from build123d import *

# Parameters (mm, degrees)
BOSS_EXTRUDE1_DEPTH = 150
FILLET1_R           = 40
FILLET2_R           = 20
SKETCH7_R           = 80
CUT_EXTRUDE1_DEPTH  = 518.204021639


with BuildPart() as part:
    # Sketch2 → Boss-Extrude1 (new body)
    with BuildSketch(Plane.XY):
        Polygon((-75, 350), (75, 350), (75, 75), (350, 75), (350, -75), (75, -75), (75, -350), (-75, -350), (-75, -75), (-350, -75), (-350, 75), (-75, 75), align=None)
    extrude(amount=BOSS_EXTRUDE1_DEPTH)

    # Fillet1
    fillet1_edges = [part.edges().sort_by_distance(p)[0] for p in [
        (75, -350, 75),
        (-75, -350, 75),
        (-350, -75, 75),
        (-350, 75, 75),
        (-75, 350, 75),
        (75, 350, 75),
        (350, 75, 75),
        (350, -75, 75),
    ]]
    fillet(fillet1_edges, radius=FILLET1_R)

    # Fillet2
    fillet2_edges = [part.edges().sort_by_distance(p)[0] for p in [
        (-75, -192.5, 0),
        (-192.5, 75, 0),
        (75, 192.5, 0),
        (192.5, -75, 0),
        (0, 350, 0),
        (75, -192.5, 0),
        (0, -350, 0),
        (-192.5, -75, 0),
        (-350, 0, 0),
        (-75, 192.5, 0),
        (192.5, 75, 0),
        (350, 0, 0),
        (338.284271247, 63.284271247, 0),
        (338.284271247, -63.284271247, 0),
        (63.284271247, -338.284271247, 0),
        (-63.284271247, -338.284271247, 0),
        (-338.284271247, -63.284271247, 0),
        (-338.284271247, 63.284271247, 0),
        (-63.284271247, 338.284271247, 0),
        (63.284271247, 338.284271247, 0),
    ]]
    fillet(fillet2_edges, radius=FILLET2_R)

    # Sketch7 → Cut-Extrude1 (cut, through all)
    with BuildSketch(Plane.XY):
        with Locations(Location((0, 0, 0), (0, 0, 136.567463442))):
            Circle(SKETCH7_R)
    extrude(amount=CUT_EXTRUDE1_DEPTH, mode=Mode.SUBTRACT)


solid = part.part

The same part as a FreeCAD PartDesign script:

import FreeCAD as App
import Part
import Sketcher

V = App.Vector
Q = App.Units.Quantity


def edges_at(feature, points):
    """Names of the edges that pass closest to the given points."""
    edges = feature.Shape.Edges
    near = lambda p: min(range(len(edges)), key=lambda i: edges[i].distToShape(Part.Vertex(*p))[0])
    return sorted({f"Edge{near(p) + 1}" for p in points})


def add_polygon(sketch, points):
    """Adds a closed chain of lines whose ends are joined by coincident constraints."""
    first, n = sketch.GeometryCount, len(points)
    for a, b in zip(points, points[1:] + points[:1]):
        sketch.addGeometry(Part.LineSegment(App.Vector(*a, 0), App.Vector(*b, 0)), False)
    for i in range(n):
        sketch.addConstraint(Sketcher.Constraint("Coincident", first + i, 2, first + (i + 1) % n, 1))

doc = App.newDocument("Part")
body = doc.addObject("PartDesign::Body", "Body")

# Sketch on XY plane
sketch1 = body.newObject("Sketcher::SketchObject", "Sketch")
sketch1.AttachmentSupport = (doc.getObject("XY_Plane"), [""])
sketch1.MapMode = "FlatFace"
add_polygon(sketch1, [(75, 350), (-75, 350), (-75, 75), (-350, 75), (-350, -75), (-75, -75), (-75, -350), (75, -350), (75, -75), (350, -75), (350, 75), (75, 75)])  # lines 0-11
sketch1.addConstraint(Sketcher.Constraint("Horizontal", 0))
sketch1.addConstraint(Sketcher.Constraint("Vertical", 1))
sketch1.addConstraint(Sketcher.Constraint("Horizontal", 2))
sketch1.addConstraint(Sketcher.Constraint("Vertical", 3))
sketch1.addConstraint(Sketcher.Constraint("Horizontal", 4))
sketch1.addConstraint(Sketcher.Constraint("Vertical", 5))
sketch1.addConstraint(Sketcher.Constraint("Horizontal", 6))
sketch1.addConstraint(Sketcher.Constraint("Vertical", 7))
sketch1.addConstraint(Sketcher.Constraint("Horizontal", 8))
sketch1.addConstraint(Sketcher.Constraint("Vertical", 9))
sketch1.addConstraint(Sketcher.Constraint("Horizontal", 10))
sketch1.addConstraint(Sketcher.Constraint("Vertical", 11))
sketch1.addConstraint(Sketcher.Constraint("Symmetric", 0, 2, 6, 2, -1, 1))
sketch1.addConstraint(Sketcher.Constraint("Symmetric", 2, 2, 8, 2, -1, 1))
sketch1.addConstraint(Sketcher.Constraint("Symmetric", 4, 2, 10, 2, -1, 1))
sketch1.addConstraint(Sketcher.Constraint("Symmetric", 4, 2, 7, 2, -2))
sketch1.addConstraint(Sketcher.Constraint("Equal", 10, 1))
sketch1.addConstraint(Sketcher.Constraint("Equal", 6, 3))
sketch1.addConstraint(Sketcher.Constraint("DistanceX", 0, 2, 0, 1, Q("150 mm")))
sketch1.addConstraint(Sketcher.Constraint("DistanceX", 2, 2, 2, 1, Q("275 mm")))
pad1 = body.newObject("PartDesign::Pad", "Pad")
pad1.Profile = sketch1
pad1.Length = 150
doc.recompute()

fillet = body.newObject("PartDesign::Fillet", "Fillet")
fillet.Base = (pad1, edges_at(pad1, [
    (75, -350, 75),
    (-75, -350, 75),
    (-350, -75, 75),
    (-350, 75, 75),
    (-75, 350, 75),
    (75, 350, 75),
    (350, 75, 75),
    (350, -75, 75),
]))
fillet.Radius = 40
doc.recompute()

fillet2 = body.newObject("PartDesign::Fillet", "Fillet001")
fillet2.Base = (fillet, edges_at(fillet, [
    (-75, -192.5, 0),
    (-192.5, 75, 0),
    (75, 192.5, 0),
    (192.5, -75, 0),
    (0, 350, 0),
    (75, -192.5, 0),
    (0, -350, 0),
    (-192.5, -75, 0),
    (-350, 0, 0),
    (-75, 192.5, 0),
    (192.5, 75, 0),
    (350, 0, 0),
    (338.284, 63.284, 0),
    (338.284, -63.284, 0),
    (63.284, -338.284, 0),
    (-63.284, -338.284, 0),
    (-338.284, -63.284, 0),
    (-338.284, 63.284, 0),
    (-63.284, 338.284, 0),
    (63.284, 338.284, 0),
]))
fillet2.Radius = 20

# Sketch on XY plane
sketch2 = body.newObject("Sketcher::SketchObject", "Sketch001")
sketch2.AttachmentSupport = (doc.getObject("XY_Plane"), [""])
sketch2.MapMode = "FlatFace"
sketch2.addGeometry(Part.Circle(V(0, 0, 0), V(0, 0, 1), 80), False)
sketch2.addConstraint(Sketcher.Constraint("Coincident", 0, 3, -1, 1))
sketch2.addConstraint(Sketcher.Constraint("Diameter", 0, Q("160 mm")))
pocket1 = body.newObject("PartDesign::Pocket", "Pocket")
pocket1.Profile = sketch2
pocket1.Type = "ThroughAll"
pocket1.Reversed = True

doc.recompute()
